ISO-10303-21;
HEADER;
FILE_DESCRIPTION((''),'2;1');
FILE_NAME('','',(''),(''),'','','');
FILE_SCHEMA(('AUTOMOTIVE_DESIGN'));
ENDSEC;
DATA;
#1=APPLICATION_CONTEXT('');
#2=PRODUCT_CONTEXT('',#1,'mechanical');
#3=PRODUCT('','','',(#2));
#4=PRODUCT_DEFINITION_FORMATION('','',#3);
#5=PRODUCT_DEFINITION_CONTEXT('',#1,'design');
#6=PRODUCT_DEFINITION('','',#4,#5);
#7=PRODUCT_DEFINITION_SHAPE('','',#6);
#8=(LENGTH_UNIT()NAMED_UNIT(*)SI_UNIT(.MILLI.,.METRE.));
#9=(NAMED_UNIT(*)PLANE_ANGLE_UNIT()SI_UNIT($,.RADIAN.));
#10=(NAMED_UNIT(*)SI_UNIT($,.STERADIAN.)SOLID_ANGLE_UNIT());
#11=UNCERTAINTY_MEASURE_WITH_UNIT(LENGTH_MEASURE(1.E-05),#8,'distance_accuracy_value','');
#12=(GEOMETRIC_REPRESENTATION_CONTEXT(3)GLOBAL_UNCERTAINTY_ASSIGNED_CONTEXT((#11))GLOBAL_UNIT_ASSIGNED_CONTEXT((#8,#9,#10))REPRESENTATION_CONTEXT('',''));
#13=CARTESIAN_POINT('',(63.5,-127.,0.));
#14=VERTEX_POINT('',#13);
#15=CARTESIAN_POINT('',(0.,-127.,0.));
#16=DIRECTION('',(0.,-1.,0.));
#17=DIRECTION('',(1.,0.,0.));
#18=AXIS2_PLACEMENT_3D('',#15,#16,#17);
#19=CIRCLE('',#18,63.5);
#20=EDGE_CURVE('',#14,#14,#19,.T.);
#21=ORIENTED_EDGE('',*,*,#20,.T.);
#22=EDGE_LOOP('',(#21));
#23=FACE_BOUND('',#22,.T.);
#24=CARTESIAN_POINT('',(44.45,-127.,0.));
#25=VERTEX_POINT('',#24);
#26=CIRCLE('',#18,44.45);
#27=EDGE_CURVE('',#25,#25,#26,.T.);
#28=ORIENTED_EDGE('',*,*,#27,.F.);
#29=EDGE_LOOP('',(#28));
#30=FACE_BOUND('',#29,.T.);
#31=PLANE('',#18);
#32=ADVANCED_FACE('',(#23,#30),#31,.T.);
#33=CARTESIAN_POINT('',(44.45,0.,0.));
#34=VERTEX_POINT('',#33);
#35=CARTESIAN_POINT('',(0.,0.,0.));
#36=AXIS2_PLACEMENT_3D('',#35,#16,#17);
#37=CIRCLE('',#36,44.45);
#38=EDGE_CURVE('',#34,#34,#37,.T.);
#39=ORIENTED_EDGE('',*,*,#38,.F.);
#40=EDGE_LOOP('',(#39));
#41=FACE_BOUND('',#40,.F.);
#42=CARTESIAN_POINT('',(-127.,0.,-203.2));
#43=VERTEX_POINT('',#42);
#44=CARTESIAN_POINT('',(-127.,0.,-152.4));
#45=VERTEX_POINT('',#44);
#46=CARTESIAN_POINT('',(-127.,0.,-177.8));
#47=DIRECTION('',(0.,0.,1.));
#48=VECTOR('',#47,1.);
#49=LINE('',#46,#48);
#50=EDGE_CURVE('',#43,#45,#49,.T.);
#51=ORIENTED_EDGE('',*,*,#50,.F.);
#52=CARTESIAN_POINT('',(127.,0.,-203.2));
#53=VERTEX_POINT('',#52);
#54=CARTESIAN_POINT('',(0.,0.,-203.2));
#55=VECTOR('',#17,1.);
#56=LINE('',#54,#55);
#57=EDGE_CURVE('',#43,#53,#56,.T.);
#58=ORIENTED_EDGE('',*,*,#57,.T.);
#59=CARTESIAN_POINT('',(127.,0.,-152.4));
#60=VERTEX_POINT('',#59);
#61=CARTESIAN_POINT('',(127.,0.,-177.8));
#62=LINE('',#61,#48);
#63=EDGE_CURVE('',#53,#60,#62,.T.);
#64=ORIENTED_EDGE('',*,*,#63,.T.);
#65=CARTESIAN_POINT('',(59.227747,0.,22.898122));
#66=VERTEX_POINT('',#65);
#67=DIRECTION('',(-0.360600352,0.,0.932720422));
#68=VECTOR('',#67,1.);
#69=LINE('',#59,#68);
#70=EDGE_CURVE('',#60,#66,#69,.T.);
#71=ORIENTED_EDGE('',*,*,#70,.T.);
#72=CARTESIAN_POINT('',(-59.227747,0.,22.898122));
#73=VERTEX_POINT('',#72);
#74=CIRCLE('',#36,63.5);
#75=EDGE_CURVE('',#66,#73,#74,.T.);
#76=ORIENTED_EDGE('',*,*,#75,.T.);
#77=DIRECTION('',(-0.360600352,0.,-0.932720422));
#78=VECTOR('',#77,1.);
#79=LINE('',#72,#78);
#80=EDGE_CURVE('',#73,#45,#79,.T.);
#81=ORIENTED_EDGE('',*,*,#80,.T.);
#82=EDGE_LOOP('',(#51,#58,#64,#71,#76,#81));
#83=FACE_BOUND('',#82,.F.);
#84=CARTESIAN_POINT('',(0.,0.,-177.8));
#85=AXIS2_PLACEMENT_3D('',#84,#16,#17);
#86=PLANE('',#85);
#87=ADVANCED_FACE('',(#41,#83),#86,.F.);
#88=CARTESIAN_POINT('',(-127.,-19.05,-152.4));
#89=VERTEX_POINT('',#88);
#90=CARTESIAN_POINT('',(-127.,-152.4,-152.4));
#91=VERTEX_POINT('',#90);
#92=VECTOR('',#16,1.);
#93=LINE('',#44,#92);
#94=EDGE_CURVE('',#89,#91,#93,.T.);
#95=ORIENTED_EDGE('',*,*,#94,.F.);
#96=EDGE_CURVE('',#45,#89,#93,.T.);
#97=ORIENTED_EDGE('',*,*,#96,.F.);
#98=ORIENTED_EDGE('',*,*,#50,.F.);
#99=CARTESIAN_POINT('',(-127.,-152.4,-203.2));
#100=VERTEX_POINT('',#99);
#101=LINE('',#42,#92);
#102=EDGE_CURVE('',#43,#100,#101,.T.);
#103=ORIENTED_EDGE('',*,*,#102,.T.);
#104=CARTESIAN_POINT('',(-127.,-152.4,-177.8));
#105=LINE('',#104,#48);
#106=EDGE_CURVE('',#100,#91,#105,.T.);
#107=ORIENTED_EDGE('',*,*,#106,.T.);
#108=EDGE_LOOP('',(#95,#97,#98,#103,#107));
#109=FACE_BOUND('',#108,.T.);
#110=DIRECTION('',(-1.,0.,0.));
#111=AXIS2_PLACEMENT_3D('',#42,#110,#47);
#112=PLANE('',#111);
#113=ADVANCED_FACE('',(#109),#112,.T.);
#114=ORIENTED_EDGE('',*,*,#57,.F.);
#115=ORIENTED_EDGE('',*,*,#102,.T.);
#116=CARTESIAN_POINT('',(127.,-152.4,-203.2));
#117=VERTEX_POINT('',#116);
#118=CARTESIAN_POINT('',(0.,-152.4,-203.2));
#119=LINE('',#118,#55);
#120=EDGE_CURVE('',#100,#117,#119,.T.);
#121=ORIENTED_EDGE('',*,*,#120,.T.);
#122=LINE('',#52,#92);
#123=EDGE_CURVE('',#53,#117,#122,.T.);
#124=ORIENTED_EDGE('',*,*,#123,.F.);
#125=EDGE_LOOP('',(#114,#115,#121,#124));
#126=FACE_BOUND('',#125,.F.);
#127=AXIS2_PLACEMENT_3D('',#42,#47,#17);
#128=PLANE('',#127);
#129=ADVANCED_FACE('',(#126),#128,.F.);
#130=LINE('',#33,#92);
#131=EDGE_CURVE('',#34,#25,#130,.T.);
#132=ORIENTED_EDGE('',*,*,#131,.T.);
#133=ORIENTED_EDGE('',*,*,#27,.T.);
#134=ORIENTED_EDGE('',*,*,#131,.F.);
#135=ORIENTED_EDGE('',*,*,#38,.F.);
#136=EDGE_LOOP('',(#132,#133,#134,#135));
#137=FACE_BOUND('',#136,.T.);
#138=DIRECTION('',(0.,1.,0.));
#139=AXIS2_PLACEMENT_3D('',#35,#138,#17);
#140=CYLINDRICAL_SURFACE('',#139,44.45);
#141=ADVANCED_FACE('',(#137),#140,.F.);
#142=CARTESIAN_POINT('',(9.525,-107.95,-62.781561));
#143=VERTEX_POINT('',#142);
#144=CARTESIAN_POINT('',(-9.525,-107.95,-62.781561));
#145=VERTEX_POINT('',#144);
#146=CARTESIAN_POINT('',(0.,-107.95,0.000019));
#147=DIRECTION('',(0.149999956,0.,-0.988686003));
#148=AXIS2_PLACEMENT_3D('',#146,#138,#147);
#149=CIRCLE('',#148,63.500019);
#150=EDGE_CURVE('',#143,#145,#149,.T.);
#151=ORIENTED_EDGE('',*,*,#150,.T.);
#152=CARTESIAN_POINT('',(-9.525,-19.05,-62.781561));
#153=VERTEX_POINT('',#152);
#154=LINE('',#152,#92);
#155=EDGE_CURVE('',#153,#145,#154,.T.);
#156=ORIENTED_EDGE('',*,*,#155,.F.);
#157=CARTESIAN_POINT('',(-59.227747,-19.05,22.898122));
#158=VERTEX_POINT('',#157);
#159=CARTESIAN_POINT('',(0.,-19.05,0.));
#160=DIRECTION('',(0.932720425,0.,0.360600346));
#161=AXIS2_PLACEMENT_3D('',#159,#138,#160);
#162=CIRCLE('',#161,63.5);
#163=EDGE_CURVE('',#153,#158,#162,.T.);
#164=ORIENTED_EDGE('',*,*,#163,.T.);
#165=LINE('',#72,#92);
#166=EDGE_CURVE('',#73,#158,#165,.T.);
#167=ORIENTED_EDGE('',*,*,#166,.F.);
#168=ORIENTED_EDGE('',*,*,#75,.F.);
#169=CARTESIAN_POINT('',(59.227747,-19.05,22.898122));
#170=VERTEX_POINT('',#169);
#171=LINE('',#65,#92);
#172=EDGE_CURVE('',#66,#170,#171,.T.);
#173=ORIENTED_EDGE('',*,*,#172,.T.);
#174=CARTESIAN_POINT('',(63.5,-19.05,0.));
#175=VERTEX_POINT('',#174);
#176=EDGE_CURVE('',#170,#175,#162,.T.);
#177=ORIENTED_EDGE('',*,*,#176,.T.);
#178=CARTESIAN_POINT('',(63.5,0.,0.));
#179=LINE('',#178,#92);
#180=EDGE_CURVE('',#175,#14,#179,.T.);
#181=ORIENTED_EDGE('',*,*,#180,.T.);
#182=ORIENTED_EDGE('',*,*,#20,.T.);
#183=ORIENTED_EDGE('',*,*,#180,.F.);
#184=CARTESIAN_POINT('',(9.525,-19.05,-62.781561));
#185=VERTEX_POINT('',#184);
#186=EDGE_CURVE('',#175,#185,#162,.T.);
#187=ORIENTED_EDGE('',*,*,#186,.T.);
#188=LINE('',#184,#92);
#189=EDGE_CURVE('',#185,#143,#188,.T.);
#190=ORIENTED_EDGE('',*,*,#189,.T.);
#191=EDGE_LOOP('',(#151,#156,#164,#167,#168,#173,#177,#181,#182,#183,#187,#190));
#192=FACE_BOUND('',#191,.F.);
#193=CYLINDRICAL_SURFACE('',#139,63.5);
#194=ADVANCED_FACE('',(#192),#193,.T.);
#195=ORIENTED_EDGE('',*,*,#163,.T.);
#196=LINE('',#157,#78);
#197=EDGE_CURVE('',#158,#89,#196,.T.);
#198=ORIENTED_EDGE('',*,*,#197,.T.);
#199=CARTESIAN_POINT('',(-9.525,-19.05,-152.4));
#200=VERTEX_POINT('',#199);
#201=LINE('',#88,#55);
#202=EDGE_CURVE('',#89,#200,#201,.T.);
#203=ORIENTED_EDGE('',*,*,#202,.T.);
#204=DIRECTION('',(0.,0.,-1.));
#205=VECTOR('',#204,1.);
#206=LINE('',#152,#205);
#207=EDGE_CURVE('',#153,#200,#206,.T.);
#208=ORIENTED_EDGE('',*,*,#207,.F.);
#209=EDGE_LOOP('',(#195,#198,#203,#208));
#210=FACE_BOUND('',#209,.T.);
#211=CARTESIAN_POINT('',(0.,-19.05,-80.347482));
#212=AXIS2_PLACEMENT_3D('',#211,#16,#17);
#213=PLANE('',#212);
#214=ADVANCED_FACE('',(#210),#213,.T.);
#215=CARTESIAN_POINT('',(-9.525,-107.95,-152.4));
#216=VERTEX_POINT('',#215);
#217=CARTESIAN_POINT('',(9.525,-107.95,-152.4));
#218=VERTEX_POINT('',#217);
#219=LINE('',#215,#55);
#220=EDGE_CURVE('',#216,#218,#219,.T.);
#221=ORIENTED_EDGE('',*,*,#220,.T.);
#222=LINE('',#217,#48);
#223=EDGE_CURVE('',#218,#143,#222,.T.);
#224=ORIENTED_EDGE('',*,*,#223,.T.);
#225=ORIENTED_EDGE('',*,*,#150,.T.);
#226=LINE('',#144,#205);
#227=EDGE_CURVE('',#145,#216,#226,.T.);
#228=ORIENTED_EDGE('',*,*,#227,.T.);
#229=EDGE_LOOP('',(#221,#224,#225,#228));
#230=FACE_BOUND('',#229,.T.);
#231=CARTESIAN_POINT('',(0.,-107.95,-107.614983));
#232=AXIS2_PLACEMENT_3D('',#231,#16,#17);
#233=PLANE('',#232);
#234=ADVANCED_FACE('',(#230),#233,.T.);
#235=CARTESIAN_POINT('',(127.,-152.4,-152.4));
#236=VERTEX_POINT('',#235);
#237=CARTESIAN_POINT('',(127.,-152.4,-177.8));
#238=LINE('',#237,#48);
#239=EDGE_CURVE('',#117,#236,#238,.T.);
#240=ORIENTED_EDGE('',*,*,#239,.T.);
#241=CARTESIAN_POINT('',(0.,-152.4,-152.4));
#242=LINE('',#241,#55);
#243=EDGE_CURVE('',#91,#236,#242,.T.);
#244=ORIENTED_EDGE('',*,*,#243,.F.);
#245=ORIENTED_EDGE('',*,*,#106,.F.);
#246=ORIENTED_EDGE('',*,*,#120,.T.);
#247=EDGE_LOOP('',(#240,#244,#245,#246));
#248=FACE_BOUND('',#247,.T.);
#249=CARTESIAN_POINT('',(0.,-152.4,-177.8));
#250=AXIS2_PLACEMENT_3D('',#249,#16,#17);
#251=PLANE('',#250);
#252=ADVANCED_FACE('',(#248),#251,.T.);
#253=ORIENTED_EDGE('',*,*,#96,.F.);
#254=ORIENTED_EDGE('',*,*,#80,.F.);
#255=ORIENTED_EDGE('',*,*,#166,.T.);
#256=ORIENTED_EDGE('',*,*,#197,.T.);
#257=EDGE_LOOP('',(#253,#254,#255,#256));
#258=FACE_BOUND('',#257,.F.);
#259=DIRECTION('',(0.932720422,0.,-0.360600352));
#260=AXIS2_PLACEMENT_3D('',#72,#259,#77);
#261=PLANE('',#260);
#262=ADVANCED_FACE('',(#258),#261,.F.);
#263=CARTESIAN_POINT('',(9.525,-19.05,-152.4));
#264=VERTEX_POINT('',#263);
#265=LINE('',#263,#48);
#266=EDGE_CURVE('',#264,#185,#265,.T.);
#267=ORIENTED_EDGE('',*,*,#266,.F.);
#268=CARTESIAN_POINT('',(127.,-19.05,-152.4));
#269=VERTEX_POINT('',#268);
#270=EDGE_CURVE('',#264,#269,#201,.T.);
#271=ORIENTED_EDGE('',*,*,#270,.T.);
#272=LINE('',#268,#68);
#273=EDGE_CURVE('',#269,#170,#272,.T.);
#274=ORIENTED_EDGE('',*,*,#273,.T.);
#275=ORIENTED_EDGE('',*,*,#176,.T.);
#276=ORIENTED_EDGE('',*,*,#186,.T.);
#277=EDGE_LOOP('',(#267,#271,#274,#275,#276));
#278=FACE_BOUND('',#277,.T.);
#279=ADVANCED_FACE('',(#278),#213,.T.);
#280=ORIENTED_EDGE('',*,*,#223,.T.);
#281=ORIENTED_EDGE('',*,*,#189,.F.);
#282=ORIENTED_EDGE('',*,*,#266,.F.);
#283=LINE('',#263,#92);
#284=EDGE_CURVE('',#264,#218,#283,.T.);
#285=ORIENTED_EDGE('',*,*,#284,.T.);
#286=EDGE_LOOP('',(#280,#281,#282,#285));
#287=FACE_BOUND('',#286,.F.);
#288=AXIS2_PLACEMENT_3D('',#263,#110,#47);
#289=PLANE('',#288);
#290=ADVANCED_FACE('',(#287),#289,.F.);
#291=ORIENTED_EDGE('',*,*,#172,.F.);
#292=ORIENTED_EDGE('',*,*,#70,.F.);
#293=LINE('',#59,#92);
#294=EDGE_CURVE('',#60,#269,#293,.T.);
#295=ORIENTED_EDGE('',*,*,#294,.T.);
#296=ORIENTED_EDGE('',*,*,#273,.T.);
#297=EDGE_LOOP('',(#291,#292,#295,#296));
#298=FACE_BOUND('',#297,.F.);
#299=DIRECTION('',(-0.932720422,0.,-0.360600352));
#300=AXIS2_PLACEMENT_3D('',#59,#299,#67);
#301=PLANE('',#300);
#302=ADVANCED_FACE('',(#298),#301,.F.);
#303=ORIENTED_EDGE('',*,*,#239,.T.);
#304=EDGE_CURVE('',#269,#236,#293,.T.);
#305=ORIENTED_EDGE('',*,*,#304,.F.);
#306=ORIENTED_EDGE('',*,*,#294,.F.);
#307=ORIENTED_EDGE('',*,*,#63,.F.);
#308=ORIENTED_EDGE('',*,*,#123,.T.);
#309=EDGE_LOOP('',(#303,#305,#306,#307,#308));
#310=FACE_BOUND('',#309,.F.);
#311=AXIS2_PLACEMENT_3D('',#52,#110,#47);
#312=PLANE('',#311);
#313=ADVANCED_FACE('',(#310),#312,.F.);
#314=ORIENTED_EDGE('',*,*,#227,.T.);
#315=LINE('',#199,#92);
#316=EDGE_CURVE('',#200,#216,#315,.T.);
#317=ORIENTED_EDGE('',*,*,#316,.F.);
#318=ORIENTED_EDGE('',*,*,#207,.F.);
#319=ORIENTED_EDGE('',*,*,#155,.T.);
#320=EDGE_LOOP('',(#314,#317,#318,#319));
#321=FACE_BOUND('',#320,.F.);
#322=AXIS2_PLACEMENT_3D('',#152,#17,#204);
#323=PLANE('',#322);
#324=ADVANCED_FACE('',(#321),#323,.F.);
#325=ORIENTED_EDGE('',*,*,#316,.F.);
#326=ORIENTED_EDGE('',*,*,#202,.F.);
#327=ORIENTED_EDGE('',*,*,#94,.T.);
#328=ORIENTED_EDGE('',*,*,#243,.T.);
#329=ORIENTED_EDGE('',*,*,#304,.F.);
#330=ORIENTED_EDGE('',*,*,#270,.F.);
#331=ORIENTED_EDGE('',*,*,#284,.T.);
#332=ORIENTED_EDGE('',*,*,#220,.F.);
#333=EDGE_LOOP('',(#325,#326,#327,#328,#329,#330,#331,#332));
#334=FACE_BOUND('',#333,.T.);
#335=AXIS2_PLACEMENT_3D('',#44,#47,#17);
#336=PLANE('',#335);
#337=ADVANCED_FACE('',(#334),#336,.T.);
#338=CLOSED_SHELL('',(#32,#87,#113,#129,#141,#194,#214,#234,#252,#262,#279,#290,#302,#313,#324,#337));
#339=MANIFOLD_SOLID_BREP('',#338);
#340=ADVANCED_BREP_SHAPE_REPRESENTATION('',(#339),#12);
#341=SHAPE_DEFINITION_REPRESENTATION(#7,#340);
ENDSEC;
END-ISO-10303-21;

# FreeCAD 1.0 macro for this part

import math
import FreeCAD as App
import Part
import Sketcher

V = App.Vector
Q = App.Units.Quantity


def add_polygon(sketch, points):
    """Adds a closed chain of lines whose ends are joined by coincident constraints."""
    first, n = sketch.GeometryCount, len(points)
    for a, b in zip(points, points[1:] + points[:1]):
        sketch.addGeometry(Part.LineSegment(App.Vector(*a, 0), App.Vector(*b, 0)), False)
    for i in range(n):
        sketch.addConstraint(Sketcher.Constraint("Coincident", first + i, 2, first + (i + 1) % n, 1))

doc = App.newDocument("Part")
body = doc.addObject("PartDesign::Body", "Body")

sketch1 = body.newObject("Sketcher::SketchObject", "Sketch")
sketch1.AttachmentSupport = (doc.getObject("XZ_Plane"), [""])
sketch1.MapMode = "FlatFace"
sketch1.addGeometry(Part.Circle(V(0, 0, 0), V(0, 0, 1), 64), False)
sketch1.addGeometry(Part.Circle(V(0, 0, 0), V(0, 0, 1), 44), False)
sketch1.addConstraint(Sketcher.Constraint("Coincident", 0, 3, -1, 1))
sketch1.addConstraint(Sketcher.Constraint("Coincident", 1, 3, -1, 1))
sketch1.addConstraint(Sketcher.Constraint("Diameter", 0, Q("5 in")))
sketch1.addConstraint(Sketcher.Constraint("Diameter", 1, Q("3.5 in")))
pad1 = body.newObject("PartDesign::Pad", "Pad")
pad1.Profile = sketch1
pad1.Length = Q("5 in")

sketch2 = body.newObject("Sketcher::SketchObject", "Sketch001")
sketch2.AttachmentSupport = (doc.getObject("XZ_Plane"), [""])
sketch2.MapMode = "FlatFace"
sketch2.addGeometry(Part.ArcOfCircle(Part.Circle(V(0, 0, 0), V(0, 0, 1), 64), math.radians(159), math.radians(381)), False)
sketch2.addGeometry(Part.LineSegment(V(-59, 23, 0), V(-127, -152, 0)), False)
sketch2.addGeometry(Part.LineSegment(V(-127, -152, 0), V(127, -152, 0)), False)
sketch2.addGeometry(Part.LineSegment(V(127, -152, 0), V(59, 23, 0)), False)
sketch2.addConstraint(Sketcher.Constraint("Tangent", 0, 1, 1, 1))
sketch2.addConstraint(Sketcher.Constraint("Coincident", 1, 2, 2, 1))
sketch2.addConstraint(Sketcher.Constraint("Coincident", 2, 2, 3, 1))
sketch2.addConstraint(Sketcher.Constraint("Tangent", 3, 2, 0, 2))
sketch2.addConstraint(Sketcher.Constraint("Horizontal", 2))
sketch2.addConstraint(Sketcher.Constraint("Coincident", 0, 3, -1, 1))
sketch2.addConstraint(Sketcher.Constraint("Horizontal", 0, 1, 3, 2))
sketch2.addConstraint(Sketcher.Constraint("Radius", 0, Q("2.5 in")))
sketch2.addConstraint(Sketcher.Constraint("DistanceX", 2, 1, 2, 2, Q("10 in")))
sketch2.addConstraint(Sketcher.Constraint("DistanceY", 1, 2, -1, 1, Q("6 in")))
pad2 = body.newObject("PartDesign::Pad", "Pad001")
pad2.Profile = sketch2
pad2.Length = Q("0.75 in")

sketch3 = body.newObject("Sketcher::SketchObject", "Sketch002")
sketch3.AttachmentSupport = (doc.getObject("XZ_Plane"), [""])
sketch3.MapMode = "FlatFace"
add_polygon(sketch3, [(-127, -152), (-127, -203), (127, -203), (127, -152)])
sketch3.addConstraint(Sketcher.Constraint("Vertical", 0))
sketch3.addConstraint(Sketcher.Constraint("Horizontal", 1))
sketch3.addConstraint(Sketcher.Constraint("Vertical", 2))
sketch3.addConstraint(Sketcher.Constraint("Horizontal", 3))
sketch3.addConstraint(Sketcher.Constraint("DistanceX", 1, 1, 1, 2, Q("10 in")))
sketch3.addConstraint(Sketcher.Constraint("DistanceY", 0, 2, 0, 1, Q("2 in")))
sketch3.addConstraint(Sketcher.Constraint("DistanceX", 0, 2, -1, 1, Q("5 in")))
sketch3.addConstraint(Sketcher.Constraint("DistanceY", 0, 2, -1, 1, Q("8 in")))
pad3 = body.newObject("PartDesign::Pad", "Pad002")
pad3.Profile = sketch3
pad3.Length = Q("6 in")

sketch4 = body.newObject("Sketcher::SketchObject", "Sketch003")
sketch4.AttachmentSupport = (doc.getObject("XZ_Plane"), [""])
sketch4.MapMode = "FlatFace"
sketch4.AttachmentOffset = App.Placement(V(0, 0, 0.75 * 25.4), App.Rotation())
sketch4.addGeometry(Part.ArcOfCircle(Part.Circle(V(0, 0, 0), V(0, 0, 1), 64), math.radians(-98.63), math.radians(-81.37)), False)
sketch4.addGeometry(Part.LineSegment(V(-10, -63, 0), V(-10, -152, 0)), False)
sketch4.addGeometry(Part.LineSegment(V(-10, -152, 0), V(10, -152, 0)), False)
sketch4.addGeometry(Part.LineSegment(V(10, -152, 0), V(10, -63, 0)), False)
sketch4.addConstraint(Sketcher.Constraint("Coincident", 0, 1, 1, 1))
sketch4.addConstraint(Sketcher.Constraint("Coincident", 1, 2, 2, 1))
sketch4.addConstraint(Sketcher.Constraint("Coincident", 2, 2, 3, 1))
sketch4.addConstraint(Sketcher.Constraint("Coincident", 3, 2, 0, 2))
sketch4.addConstraint(Sketcher.Constraint("Vertical", 1))
sketch4.addConstraint(Sketcher.Constraint("Horizontal", 2))
sketch4.addConstraint(Sketcher.Constraint("Vertical", 3))
sketch4.addConstraint(Sketcher.Constraint("Symmetric", 0, 1, 3, 2, -2))
sketch4.addConstraint(Sketcher.Constraint("DistanceY", 1, 2, -1, 1, Q("6 in")))
sketch4.addConstraint(Sketcher.Constraint("DistanceX", 2, 1, 2, 2, Q("0.75 in")))
sketch4.addConstraint(Sketcher.Constraint("Radius", 0, 63.500019))
sketch4.addConstraint(Sketcher.Constraint("DistanceY", 1, 2, 1, 1, 89.618439))
pad4 = body.newObject("PartDesign::Pad", "Pad003")
pad4.Profile = sketch4
pad4.Length = Q("3.5 in")

doc.recompute()
